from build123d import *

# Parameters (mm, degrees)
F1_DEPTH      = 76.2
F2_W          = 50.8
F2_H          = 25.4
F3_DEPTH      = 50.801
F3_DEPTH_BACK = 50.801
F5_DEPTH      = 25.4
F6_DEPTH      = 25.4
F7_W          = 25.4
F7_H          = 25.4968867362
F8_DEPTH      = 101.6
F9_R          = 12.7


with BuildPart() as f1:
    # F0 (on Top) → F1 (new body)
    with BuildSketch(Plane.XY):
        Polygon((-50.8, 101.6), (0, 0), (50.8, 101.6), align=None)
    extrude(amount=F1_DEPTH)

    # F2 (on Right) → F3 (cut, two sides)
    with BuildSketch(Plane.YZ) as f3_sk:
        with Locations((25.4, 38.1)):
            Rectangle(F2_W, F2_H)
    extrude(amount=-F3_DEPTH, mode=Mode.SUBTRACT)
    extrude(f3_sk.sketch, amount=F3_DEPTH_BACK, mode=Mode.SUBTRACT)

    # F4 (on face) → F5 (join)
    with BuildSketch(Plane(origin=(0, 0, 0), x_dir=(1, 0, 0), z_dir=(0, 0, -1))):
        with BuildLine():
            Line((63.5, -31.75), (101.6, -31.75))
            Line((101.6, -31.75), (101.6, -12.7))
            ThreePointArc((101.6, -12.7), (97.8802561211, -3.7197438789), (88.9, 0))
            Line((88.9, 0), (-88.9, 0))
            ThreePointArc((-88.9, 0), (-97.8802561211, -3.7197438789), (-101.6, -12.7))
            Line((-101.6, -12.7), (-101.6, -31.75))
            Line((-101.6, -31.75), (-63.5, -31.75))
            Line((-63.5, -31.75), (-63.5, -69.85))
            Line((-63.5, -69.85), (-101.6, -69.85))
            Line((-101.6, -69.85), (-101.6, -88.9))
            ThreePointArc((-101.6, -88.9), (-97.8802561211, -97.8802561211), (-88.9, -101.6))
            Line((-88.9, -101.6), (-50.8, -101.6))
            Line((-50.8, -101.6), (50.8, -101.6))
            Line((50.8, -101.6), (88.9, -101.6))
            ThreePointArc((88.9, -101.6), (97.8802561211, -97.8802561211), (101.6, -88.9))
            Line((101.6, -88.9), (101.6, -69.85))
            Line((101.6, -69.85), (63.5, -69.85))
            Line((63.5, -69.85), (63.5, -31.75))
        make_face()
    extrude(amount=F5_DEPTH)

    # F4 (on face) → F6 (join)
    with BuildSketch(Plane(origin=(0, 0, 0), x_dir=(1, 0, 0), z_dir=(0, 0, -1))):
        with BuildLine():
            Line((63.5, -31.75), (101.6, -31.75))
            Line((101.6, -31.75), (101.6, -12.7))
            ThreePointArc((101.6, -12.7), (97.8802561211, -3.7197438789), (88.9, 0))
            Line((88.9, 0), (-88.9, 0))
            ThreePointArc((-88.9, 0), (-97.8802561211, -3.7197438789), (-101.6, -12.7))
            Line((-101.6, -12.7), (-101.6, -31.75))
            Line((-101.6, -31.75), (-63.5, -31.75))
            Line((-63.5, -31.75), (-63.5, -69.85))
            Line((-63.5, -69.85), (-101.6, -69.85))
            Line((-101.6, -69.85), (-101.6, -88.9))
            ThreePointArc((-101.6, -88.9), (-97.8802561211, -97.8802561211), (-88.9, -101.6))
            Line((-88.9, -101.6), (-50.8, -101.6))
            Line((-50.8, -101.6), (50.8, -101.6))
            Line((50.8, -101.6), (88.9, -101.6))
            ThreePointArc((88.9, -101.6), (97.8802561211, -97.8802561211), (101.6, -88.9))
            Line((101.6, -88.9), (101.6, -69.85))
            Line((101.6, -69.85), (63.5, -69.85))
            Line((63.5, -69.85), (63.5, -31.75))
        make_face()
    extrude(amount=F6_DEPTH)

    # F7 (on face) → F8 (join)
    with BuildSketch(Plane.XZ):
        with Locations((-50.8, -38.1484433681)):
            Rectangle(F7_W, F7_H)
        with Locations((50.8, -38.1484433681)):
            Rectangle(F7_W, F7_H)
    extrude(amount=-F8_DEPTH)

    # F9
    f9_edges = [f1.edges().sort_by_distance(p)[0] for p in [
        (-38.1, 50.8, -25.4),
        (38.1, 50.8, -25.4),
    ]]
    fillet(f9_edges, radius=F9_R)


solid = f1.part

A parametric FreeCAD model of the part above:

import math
import FreeCAD as App
import Part
import Sketcher
from FreeCAD import Vector
Q = App.Units.Quantity


def edges_at(feature, points):
    """Names of the edges that pass closest to the given points."""
    edges = feature.Shape.Edges
    near = lambda p: min(range(len(edges)), key=lambda i: edges[i].distToShape(Part.Vertex(*p))[0])
    return sorted({f"Edge{near(p) + 1}" for p in points})


def add_polygon(sketch, points):
    """Adds a closed chain of lines whose ends are joined by coincident constraints."""
    first, n = sketch.GeometryCount, len(points)
    for a, b in zip(points, points[1:] + points[:1]):
        sketch.addGeometry(Part.LineSegment(App.Vector(*a, 0), App.Vector(*b, 0)), False)
    for i in range(n):
        sketch.addConstraint(Sketcher.Constraint("Coincident", first + i, 2, first + (i + 1) % n, 1))

doc = App.newDocument("Part")
body = doc.addObject("PartDesign::Body", "Body")

sketch1 = body.newObject("Sketcher::SketchObject", "Sketch")
sketch1.AttachmentSupport = (doc.getObject("XY_Plane"), [""])
sketch1.MapMode = "FlatFace"
add_polygon(sketch1, [(-51, 102), (0, 0), (51, 102)])
sketch1.addConstraint([
    Sketcher.Constraint("Horizontal", 2),
    Sketcher.Constraint("Coincident", 0, 2, -1, 1),
    Sketcher.Constraint("Equal", 0, 1),
    Sketcher.Constraint("DistanceX", 2, 2, 2, 1, Q("4 in")),
    Sketcher.Constraint("DistanceY", -1, 1, 1, 2, Q("4 in")),
])
pad1 = body.newObject("PartDesign::Pad", "Pad")
pad1.Profile = sketch1
pad1.Length = Q("3 in")

sketch2 = body.newObject("Sketcher::SketchObject", "Sketch001")
sketch2.AttachmentSupport = (doc.getObject("YZ_Plane"), [""])
sketch2.MapMode = "FlatFace"
add_polygon(sketch2, [(0, 51), (0, 25), (51, 25), (51, 51)])
sketch2.addConstraint([
    Sketcher.Constraint("Vertical", 0),
    Sketcher.Constraint("Horizontal", 1),
    Sketcher.Constraint("Vertical", 2),
    Sketcher.Constraint("Horizontal", 3),
    Sketcher.Constraint("PointOnObject", 0, 2, -2),
    Sketcher.Constraint("DistanceX", 1, 1, 1, 2, Q("2 in")),
    Sketcher.Constraint("DistanceY", 0, 2, 0, 1, Q("1 in")),
    Sketcher.Constraint("DistanceY", -1, 1, 0, 2, Q("1 in")),
])
pocket1 = body.newObject("PartDesign::Pocket", "Pocket")
pocket1.Profile = sketch2
pocket1.Type = "ThroughAll"
pocket1.Midplane = True

sketch3 = body.newObject("Sketcher::SketchObject", "Sketch002")
sketch3.AttachmentSupport = (doc.getObject("XY_Plane"), [""])
sketch3.MapMode = "FlatFace"
sketch3.addGeometry([
    Part.LineSegment(Vector(64, 32, 0), Vector(102, 32, 0)),
    Part.LineSegment(Vector(102, 32, 0), Vector(102, 13, 0)),
    Part.ArcOfCircle(Part.Circle(Vector(89, 13, 0), Vector(0, 0, 1), 13), math.radians(-90), math.radians(0)),
    Part.LineSegment(Vector(89, 0, 0), Vector(-89, 0, 0)),
    Part.ArcOfCircle(Part.Circle(Vector(-89, 13, 0), Vector(0, 0, 1), 13), math.radians(180), math.radians(270)),
    Part.LineSegment(Vector(-102, 13, 0), Vector(-102, 32, 0)),
    Part.LineSegment(Vector(-102, 32, 0), Vector(-64, 32, 0)),
    Part.LineSegment(Vector(-64, 32, 0), Vector(-64, 70, 0)),
    Part.LineSegment(Vector(-64, 70, 0), Vector(-102, 70, 0)),
    Part.LineSegment(Vector(-102, 70, 0), Vector(-102, 89, 0)),
    Part.ArcOfCircle(Part.Circle(Vector(-89, 89, 0), Vector(0, 0, 1), 13), math.radians(90), math.radians(180)),
    Part.LineSegment(Vector(-89, 102, 0), Vector(89, 102, 0)),
    Part.ArcOfCircle(Part.Circle(Vector(89, 89, 0), Vector(0, 0, 1), 13), math.radians(0), math.radians(90)),
    Part.LineSegment(Vector(102, 89, 0), Vector(102, 70, 0)),
    Part.LineSegment(Vector(102, 70, 0), Vector(64, 70, 0)),
    Part.LineSegment(Vector(64, 70, 0), Vector(64, 32, 0)),
], False)
sketch3.addConstraint([
    Sketcher.Constraint("Coincident", 0, 2, 1, 1),
    Sketcher.Constraint("Tangent", 1, 2, 2, 2),
    Sketcher.Constraint("Tangent", 2, 1, 3, 1),
    Sketcher.Constraint("Tangent", 3, 2, 4, 2),
    Sketcher.Constraint("Tangent", 4, 1, 5, 1),
    Sketcher.Constraint("Coincident", 5, 2, 6, 1),
    Sketcher.Constraint("Coincident", 6, 2, 7, 1),
    Sketcher.Constraint("Coincident", 7, 2, 8, 1),
    Sketcher.Constraint("Coincident", 8, 2, 9, 1),
    Sketcher.Constraint("Tangent", 9, 2, 10, 2),
    Sketcher.Constraint("Tangent", 10, 1, 11, 1),
    Sketcher.Constraint("Tangent", 11, 2, 12, 2),
    Sketcher.Constraint("Tangent", 12, 1, 13, 1),
    Sketcher.Constraint("Coincident", 13, 2, 14, 1),
    Sketcher.Constraint("Coincident", 14, 2, 15, 1),
    Sketcher.Constraint("Coincident", 15, 2, 0, 1),
    Sketcher.Constraint("Horizontal", 0),
    Sketcher.Constraint("Vertical", 1),
    Sketcher.Constraint("Horizontal", 3),
    Sketcher.Constraint("Vertical", 5),
    Sketcher.Constraint("Horizontal", 6),
    Sketcher.Constraint("Vertical", 7),
    Sketcher.Constraint("Horizontal", 8),
    Sketcher.Constraint("Vertical", 9),
    Sketcher.Constraint("Horizontal", 11),
    Sketcher.Constraint("Vertical", 13),
    Sketcher.Constraint("Horizontal", 14),
    Sketcher.Constraint("Vertical", 15),
    Sketcher.Constraint("Equal", 2, 4),
    Sketcher.Constraint("Equal", 4, 10),
    Sketcher.Constraint("Equal", 10, 12),
    Sketcher.Constraint("Symmetric", 2, 1, 3, 2, -1, 1),
    Sketcher.Constraint("Symmetric", 8, 2, 13, 2, -2),
    Sketcher.Constraint("Symmetric", 6, 2, 15, 2, -2),
    Sketcher.Constraint("Vertical", 4, 3, 10, 3),
    Sketcher.Constraint("Equal", 14, 7),
    Sketcher.Constraint("Equal", 5, 9),
    Sketcher.Constraint("Radius", 2, Q("0.5 in")),
    Sketcher.Constraint("DistanceX", 3, 2, 3, 1, Q("7 in")),
    Sketcher.Constraint("DistanceX", 0, 1, 0, 2, Q("1.5 in")),
    Sketcher.Constraint("DistanceY", -1, 1, 10, 1, Q("4 in")),
])
pad2 = body.newObject("PartDesign::Pad", "Pad001")
pad2.Profile = sketch3
pad2.Length = Q("1 in")
pad2.Reversed = True

sketch4 = body.newObject("Sketcher::SketchObject", "Sketch003")
sketch4.AttachmentSupport = (doc.getObject("XY_Plane"), [""])
sketch4.MapMode = "FlatFace"
sketch4.addGeometry([
    Part.LineSegment(Vector(64, 32, 0), Vector(102, 32, 0)),
    Part.LineSegment(Vector(102, 32, 0), Vector(102, 13, 0)),
    Part.ArcOfCircle(Part.Circle(Vector(89, 13, 0), Vector(0, 0, 1), 13), math.radians(-90), math.radians(0)),
    Part.LineSegment(Vector(89, 0, 0), Vector(-89, 0, 0)),
    Part.ArcOfCircle(Part.Circle(Vector(-89, 13, 0), Vector(0, 0, 1), 13), math.radians(180), math.radians(270)),
    Part.LineSegment(Vector(-102, 13, 0), Vector(-102, 32, 0)),
    Part.LineSegment(Vector(-102, 32, 0), Vector(-64, 32, 0)),
    Part.LineSegment(Vector(-64, 32, 0), Vector(-64, 70, 0)),
    Part.LineSegment(Vector(-64, 70, 0), Vector(-102, 70, 0)),
    Part.LineSegment(Vector(-102, 70, 0), Vector(-102, 89, 0)),
    Part.ArcOfCircle(Part.Circle(Vector(-89, 89, 0), Vector(0, 0, 1), 13), math.radians(90), math.radians(180)),
    Part.LineSegment(Vector(-89, 102, 0), Vector(89, 102, 0)),
    Part.ArcOfCircle(Part.Circle(Vector(89, 89, 0), Vector(0, 0, 1), 13), math.radians(0), math.radians(90)),
    Part.LineSegment(Vector(102, 89, 0), Vector(102, 70, 0)),
    Part.LineSegment(Vector(102, 70, 0), Vector(64, 70, 0)),
    Part.LineSegment(Vector(64, 70, 0), Vector(64, 32, 0)),
], False)
sketch4.addConstraint([
    Sketcher.Constraint("Coincident", 0, 2, 1, 1),
    Sketcher.Constraint("Tangent", 1, 2, 2, 2),
    Sketcher.Constraint("Tangent", 2, 1, 3, 1),
    Sketcher.Constraint("Tangent", 3, 2, 4, 2),
    Sketcher.Constraint("Tangent", 4, 1, 5, 1),
    Sketcher.Constraint("Coincident", 5, 2, 6, 1),
    Sketcher.Constraint("Coincident", 6, 2, 7, 1),
    Sketcher.Constraint("Coincident", 7, 2, 8, 1),
    Sketcher.Constraint("Coincident", 8, 2, 9, 1),
    Sketcher.Constraint("Tangent", 9, 2, 10, 2),
    Sketcher.Constraint("Tangent", 10, 1, 11, 1),
    Sketcher.Constraint("Tangent", 11, 2, 12, 2),
    Sketcher.Constraint("Tangent", 12, 1, 13, 1),
    Sketcher.Constraint("Coincident", 13, 2, 14, 1),
    Sketcher.Constraint("Coincident", 14, 2, 15, 1),
    Sketcher.Constraint("Coincident", 15, 2, 0, 1),
    Sketcher.Constraint("Horizontal", 0),
    Sketcher.Constraint("Vertical", 1),
    Sketcher.Constraint("Horizontal", 3),
    Sketcher.Constraint("Vertical", 5),
    Sketcher.Constraint("Horizontal", 6),
    Sketcher.Constraint("Vertical", 7),
    Sketcher.Constraint("Horizontal", 8),
    Sketcher.Constraint("Vertical", 9),
    Sketcher.Constraint("Horizontal", 11),
    Sketcher.Constraint("Vertical", 13),
    Sketcher.Constraint("Horizontal", 14),
    Sketcher.Constraint("Vertical", 15),
    Sketcher.Constraint("Equal", 2, 4),
    Sketcher.Constraint("Equal", 4, 10),
    Sketcher.Constraint("Equal", 10, 12),
    Sketcher.Constraint("Symmetric", 2, 1, 3, 2, -1, 1),
    Sketcher.Constraint("Symmetric", 8, 2, 13, 2, -2),
    Sketcher.Constraint("Symmetric", 6, 2, 15, 2, -2),
    Sketcher.Constraint("Vertical", 4, 3, 10, 3),
    Sketcher.Constraint("Equal", 14, 7),
    Sketcher.Constraint("Equal", 5, 9),
    Sketcher.Constraint("Radius", 2, Q("0.5 in")),
    Sketcher.Constraint("DistanceX", 3, 2, 3, 1, Q("7 in")),
    Sketcher.Constraint("DistanceX", 0, 1, 0, 2, Q("1.5 in")),
    Sketcher.Constraint("DistanceY", -1, 1, 10, 1, Q("4 in")),
])
pad3 = body.newObject("PartDesign::Pad", "Pad002")
pad3.Profile = sketch4
pad3.Length = Q("1 in")
pad3.Reversed = True

sketch5 = body.newObject("Sketcher::SketchObject", "Sketch004")
sketch5.AttachmentSupport = (doc.getObject("XZ_Plane"), [""])
sketch5.MapMode = "FlatFace"
add_polygon(sketch5, [(-64, -25), (-64, -51), (-38, -51), (-38, -25)])
add_polygon(sketch5, [(38, -25), (38, -51), (64, -51), (64, -25)])
sketch5.addConstraint([
    Sketcher.Constraint("Vertical", 0),
    Sketcher.Constraint("Horizontal", 1),
    Sketcher.Constraint("Vertical", 2),
    Sketcher.Constraint("Horizontal", 3),
    Sketcher.Constraint("Vertical", 4),
    Sketcher.Constraint("Horizontal", 5),
    Sketcher.Constraint("Vertical", 6),
    Sketcher.Constraint("Horizontal", 7),
    Sketcher.Constraint("Symmetric", 1, 2, 4, 2, -2),
    Sketcher.Constraint("Symmetric", 3, 2, 6, 2, -2),
    Sketcher.Constraint("DistanceX", 1, 1, 1, 2, Q("1 in")),
    Sketcher.Constraint("DistanceY", 2, 2, -1, 1, Q("1 in")),
    Sketcher.Constraint("DistanceX", 1, 2, 4, 2, Q("3 in")),
    Sketcher.Constraint("DistanceY", 0, 2, 0, 1, Q("25.496887 mm")),
])
pad4 = body.newObject("PartDesign::Pad", "Pad003")
pad4.Profile = sketch5
pad4.Length = Q("4 in")
pad4.Reversed = True
doc.recompute()

fillet = body.newObject("PartDesign::Fillet", "Fillet")
fillet.Base = (pad4, edges_at(pad4, [(-38.1, 50.8, -25.4), (38.1, 50.8, -25.4)]))
fillet.Radius = Q("0.5 in")

doc.recompute()
